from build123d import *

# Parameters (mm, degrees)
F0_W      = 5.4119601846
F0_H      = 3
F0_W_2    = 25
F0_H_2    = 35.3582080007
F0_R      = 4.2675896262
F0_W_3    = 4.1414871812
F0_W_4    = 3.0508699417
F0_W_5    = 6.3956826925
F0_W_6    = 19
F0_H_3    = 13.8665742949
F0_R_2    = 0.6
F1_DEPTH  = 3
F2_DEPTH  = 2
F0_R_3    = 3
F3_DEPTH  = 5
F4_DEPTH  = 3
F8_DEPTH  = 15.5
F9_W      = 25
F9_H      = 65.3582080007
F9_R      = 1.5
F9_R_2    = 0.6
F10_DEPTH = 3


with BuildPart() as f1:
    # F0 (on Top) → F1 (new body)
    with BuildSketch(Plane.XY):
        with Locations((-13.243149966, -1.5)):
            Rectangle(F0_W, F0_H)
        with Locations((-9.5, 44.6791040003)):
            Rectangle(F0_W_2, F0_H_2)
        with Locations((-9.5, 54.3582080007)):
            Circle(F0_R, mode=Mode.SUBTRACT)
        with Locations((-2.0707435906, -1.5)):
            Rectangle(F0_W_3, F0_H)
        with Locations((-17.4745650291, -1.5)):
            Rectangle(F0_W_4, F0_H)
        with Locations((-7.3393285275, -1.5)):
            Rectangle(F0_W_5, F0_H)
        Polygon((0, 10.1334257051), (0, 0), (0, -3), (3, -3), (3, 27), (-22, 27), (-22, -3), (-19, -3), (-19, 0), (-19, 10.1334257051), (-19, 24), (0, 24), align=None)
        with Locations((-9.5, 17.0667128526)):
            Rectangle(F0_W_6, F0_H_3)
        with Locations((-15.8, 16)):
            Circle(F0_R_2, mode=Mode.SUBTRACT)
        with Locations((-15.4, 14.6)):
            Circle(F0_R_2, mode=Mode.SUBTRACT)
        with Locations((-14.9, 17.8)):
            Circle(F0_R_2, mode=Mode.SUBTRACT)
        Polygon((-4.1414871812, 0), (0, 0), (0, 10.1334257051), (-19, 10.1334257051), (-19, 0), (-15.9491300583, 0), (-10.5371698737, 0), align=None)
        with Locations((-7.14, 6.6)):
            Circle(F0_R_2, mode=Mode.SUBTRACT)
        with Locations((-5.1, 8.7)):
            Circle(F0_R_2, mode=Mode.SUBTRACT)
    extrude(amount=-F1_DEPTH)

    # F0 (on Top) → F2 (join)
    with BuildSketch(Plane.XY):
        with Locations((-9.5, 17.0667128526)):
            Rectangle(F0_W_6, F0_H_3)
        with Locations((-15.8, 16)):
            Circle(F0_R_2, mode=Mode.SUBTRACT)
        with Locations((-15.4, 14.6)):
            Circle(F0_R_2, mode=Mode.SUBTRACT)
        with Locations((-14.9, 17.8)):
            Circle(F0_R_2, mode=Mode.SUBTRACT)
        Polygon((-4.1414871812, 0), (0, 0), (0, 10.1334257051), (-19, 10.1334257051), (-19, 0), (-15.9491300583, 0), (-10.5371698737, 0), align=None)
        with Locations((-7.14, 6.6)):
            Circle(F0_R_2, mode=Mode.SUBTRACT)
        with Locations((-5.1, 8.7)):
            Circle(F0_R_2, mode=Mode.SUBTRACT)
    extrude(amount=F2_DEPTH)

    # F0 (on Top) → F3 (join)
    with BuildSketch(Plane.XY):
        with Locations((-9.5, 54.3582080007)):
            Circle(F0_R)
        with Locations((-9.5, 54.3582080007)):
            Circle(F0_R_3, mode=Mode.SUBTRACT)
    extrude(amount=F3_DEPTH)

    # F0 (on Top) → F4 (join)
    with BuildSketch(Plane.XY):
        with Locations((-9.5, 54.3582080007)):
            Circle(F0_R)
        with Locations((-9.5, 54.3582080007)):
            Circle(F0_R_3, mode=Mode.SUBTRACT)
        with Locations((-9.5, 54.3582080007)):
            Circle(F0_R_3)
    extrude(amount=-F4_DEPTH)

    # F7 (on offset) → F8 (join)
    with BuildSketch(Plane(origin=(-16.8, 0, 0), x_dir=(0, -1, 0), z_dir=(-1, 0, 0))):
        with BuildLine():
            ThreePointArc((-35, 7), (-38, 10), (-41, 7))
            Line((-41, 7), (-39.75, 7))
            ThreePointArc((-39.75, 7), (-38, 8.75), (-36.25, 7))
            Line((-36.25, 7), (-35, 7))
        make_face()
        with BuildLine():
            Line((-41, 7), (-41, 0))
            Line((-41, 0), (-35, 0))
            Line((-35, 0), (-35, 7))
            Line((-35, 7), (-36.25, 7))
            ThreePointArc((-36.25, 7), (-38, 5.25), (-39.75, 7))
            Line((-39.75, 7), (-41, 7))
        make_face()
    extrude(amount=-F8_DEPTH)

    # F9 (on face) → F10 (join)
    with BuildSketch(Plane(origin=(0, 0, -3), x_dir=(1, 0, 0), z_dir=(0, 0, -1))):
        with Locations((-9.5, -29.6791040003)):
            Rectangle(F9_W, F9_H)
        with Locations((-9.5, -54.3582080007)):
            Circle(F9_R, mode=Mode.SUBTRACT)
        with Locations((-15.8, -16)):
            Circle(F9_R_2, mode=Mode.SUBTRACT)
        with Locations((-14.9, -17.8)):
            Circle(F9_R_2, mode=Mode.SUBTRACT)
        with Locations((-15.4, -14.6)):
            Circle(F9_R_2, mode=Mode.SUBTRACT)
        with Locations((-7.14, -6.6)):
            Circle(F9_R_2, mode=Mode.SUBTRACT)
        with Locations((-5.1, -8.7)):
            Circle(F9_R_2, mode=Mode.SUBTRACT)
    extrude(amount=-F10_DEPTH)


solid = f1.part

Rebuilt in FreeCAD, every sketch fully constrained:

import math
import FreeCAD as App
import Part
import Sketcher
from FreeCAD import Vector
Q = App.Units.Quantity

doc = App.newDocument("Part")
params = doc.addObject("Spreadsheet::Sheet", "Params")
for row, (alias, value) in enumerate([
    ("sketch1_diameter", "1.2 mm"),
    ("sketch1_width", "25 mm"),
    ("pad1_length", "3 mm"),
    ("sketch2_diameter", "1.2 mm"),
    ("sketch2_width", "19 mm"),
    ("sketch2_height", "24 mm"),
    ("pad2_length", "2 mm"),
    ("sketch3_diameter", "6 mm"),
    ("pad3_length", "5 mm"),
    ("pad4_length", "3 mm"),
    ("sketch5_radius", "3 mm"),
    ("sketch5_diameter", "3.5 mm"),
    ("sketch5_height", "7 mm"),
    ("pad5_length", "15.5 mm"),
    ("sketch6_diameter", "3 mm"),
    ("sketch6_diameter2", "1.2 mm"),
    ("sketch6_width", "25 mm"),
    ("pad6_length", "3 mm"),
], start=1):
    params.set(f"A{row}", alias)
    params.set(f"B{row}", "=" + value)
    params.setAlias(f"B{row}", alias)

body = doc.addObject("PartDesign::Body", "Body")
body.AllowCompound = True

sketch1 = doc.addObject("Sketcher::SketchObject", "Sketch")
body.addObject(sketch1)
sketch1.AttachmentSupport = (doc.XY_Plane, [""])
sketch1.MapMode = "FlatFace"
sketch1.addGeometry([
    Part.LineSegment(Vector(3, -3, 0), Vector(3, 62.4, 0)),
    Part.LineSegment(Vector(3, 62.4, 0), Vector(-22, 62.4, 0)),
    Part.LineSegment(Vector(-22, 62.4, 0), Vector(-22, -3, 0)),
    Part.LineSegment(Vector(-22, -3, 0), Vector(3, -3, 0)),
    Part.Circle(Vector(-15.4, 14.6, 0), Vector(0, 0, 1), 0.6),
    Part.Circle(Vector(-15.8, 16, 0), Vector(0, 0, 1), 0.6),
    Part.Circle(Vector(-14.9, 17.8, 0), Vector(0, 0, 1), 0.6),
    Part.Circle(Vector(-7.1, 6.6, 0), Vector(0, 0, 1), 0.6),
    Part.Circle(Vector(-5.1, 8.7, 0), Vector(0, 0, 1), 0.6),
    Part.Circle(Vector(-9.5, 54.4, 0), Vector(0, 0, 1), 4.3),
], False)
sketch1.addConstraint([
    Sketcher.Constraint("Coincident", 0, 2, 1, 1),
    Sketcher.Constraint("Coincident", 1, 2, 2, 1),
    Sketcher.Constraint("Coincident", 2, 2, 3, 1),
    Sketcher.Constraint("Coincident", 3, 2, 0, 1),
    Sketcher.Constraint("Vertical", 0),
    Sketcher.Constraint("Horizontal", 1),
    Sketcher.Constraint("Vertical", 2),
    Sketcher.Constraint("Horizontal", 3),
    Sketcher.Constraint("Equal", 4, 5),
    Sketcher.Constraint("Equal", 5, 6),
    Sketcher.Constraint("Equal", 6, 7),
    Sketcher.Constraint("Equal", 7, 8),
    Sketcher.Constraint("Diameter", 4, Q("1.2 mm")),
    Sketcher.Constraint("DistanceX", 1, 2, 1, 1, Q("25 mm")),
    Sketcher.Constraint("DistanceY", -1, 1, 5, 3, Q("16 mm")),
    Sketcher.Constraint("DistanceX", -1, 1, 0, 2, Q("3 mm")),
    Sketcher.Constraint("DistanceY", 2, 2, -1, 1, Q("3 mm")),
    Sketcher.Constraint("DistanceY", 7, 3, 4, 3, Q("8 mm")),
    Sketcher.Constraint("DistanceY", 9, 3, 0, 2, Q("8 mm")),
    Sketcher.Constraint("DistanceX", 4, 3, -1, 1, Q("15.4 mm")),
    Sketcher.Constraint("DistanceY", -1, 1, 4, 3, Q("14.6 mm")),
    Sketcher.Constraint("DistanceX", 5, 3, -1, 1, Q("15.8 mm")),
    Sketcher.Constraint("DistanceX", 6, 3, -1, 1, Q("14.9 mm")),
    Sketcher.Constraint("DistanceY", -1, 1, 6, 3, Q("17.8 mm")),
    Sketcher.Constraint("DistanceX", 8, 3, -1, 1, Q("5.1 mm")),
    Sketcher.Constraint("DistanceY", -1, 1, 8, 3, Q("8.7 mm")),
    Sketcher.Constraint("DistanceX", 9, 3, -1, 1, Q("9.5 mm")),
    Sketcher.Constraint("Diameter", 9, Q("8.535179 mm")),
    Sketcher.Constraint("DistanceX", 7, 3, -1, 1, Q("7.14 mm")),
    Sketcher.Constraint("DistanceY", 0, 1, 0, 2, Q("65.358208 mm")),
])
sketch1.setExpression("Constraints[12]", "Params.sketch1_diameter")
sketch1.setExpression("Constraints[13]", "Params.sketch1_width")
pad1 = doc.addObject("PartDesign::Pad", "Pad")
body.addObject(pad1)
pad1.Profile = sketch1
pad1.setExpression("Length", "Params.pad1_length")
pad1.Reversed = True

sketch2 = doc.addObject("Sketcher::SketchObject", "Sketch001")
body.addObject(sketch2)
sketch2.AttachmentSupport = (doc.XY_Plane, [""])
sketch2.MapMode = "FlatFace"
sketch2.addGeometry([
    Part.LineSegment(Vector(-19, 24, 0), Vector(-19, 0, 0)),
    Part.LineSegment(Vector(-19, 0, 0), Vector(0, 0, 0)),
    Part.LineSegment(Vector(0, 0, 0), Vector(0, 24, 0)),
    Part.LineSegment(Vector(0, 24, 0), Vector(-19, 24, 0)),
    Part.Circle(Vector(-7.1, 6.6, 0), Vector(0, 0, 1), 0.6),
    Part.Circle(Vector(-5.1, 8.7, 0), Vector(0, 0, 1), 0.6),
    Part.Circle(Vector(-15.4, 14.6, 0), Vector(0, 0, 1), 0.6),
    Part.Circle(Vector(-15.8, 16, 0), Vector(0, 0, 1), 0.6),
    Part.Circle(Vector(-14.9, 17.8, 0), Vector(0, 0, 1), 0.6),
], False)
sketch2.addConstraint([
    Sketcher.Constraint("Coincident", 0, 2, 1, 1),
    Sketcher.Constraint("Coincident", 1, 2, 2, 1),
    Sketcher.Constraint("Coincident", 2, 2, 3, 1),
    Sketcher.Constraint("Coincident", 3, 2, 0, 1),
    Sketcher.Constraint("Vertical", 0),
    Sketcher.Constraint("Horizontal", 1),
    Sketcher.Constraint("Vertical", 2),
    Sketcher.Constraint("Horizontal", 3),
    Sketcher.Constraint("Coincident", 1, 2, -1, 1),
    Sketcher.Constraint("Equal", 4, 5),
    Sketcher.Constraint("Equal", 5, 6),
    Sketcher.Constraint("Equal", 6, 7),
    Sketcher.Constraint("Equal", 7, 8),
    Sketcher.Constraint("Diameter", 4, Q("1.2 mm")),
    Sketcher.Constraint("DistanceX", 1, 1, 1, 2, Q("19 mm")),
    Sketcher.Constraint("DistanceY", 0, 2, 0, 1, Q("24 mm")),
    Sketcher.Constraint("DistanceY", -1, 1, 7, 3, Q("16 mm")),
    Sketcher.Constraint("DistanceY", 4, 3, 6, 3, Q("8 mm")),
    Sketcher.Constraint("DistanceY", -1, 1, 4, 3, Q("6.6 mm")),
    Sketcher.Constraint("DistanceX", 5, 3, -1, 1, Q("5.1 mm")),
    Sketcher.Constraint("DistanceY", -1, 1, 5, 3, Q("8.7 mm")),
    Sketcher.Constraint("DistanceX", 6, 3, -1, 1, Q("15.4 mm")),
    Sketcher.Constraint("DistanceX", 7, 3, -1, 1, Q("15.8 mm")),
    Sketcher.Constraint("DistanceX", 8, 3, -1, 1, Q("14.9 mm")),
    Sketcher.Constraint("DistanceY", -1, 1, 8, 3, Q("17.8 mm")),
    Sketcher.Constraint("DistanceX", 4, 3, -1, 1, Q("7.14 mm")),
])
sketch2.setExpression("Constraints[13]", "Params.sketch2_diameter")
sketch2.setExpression("Constraints[14]", "Params.sketch2_width")
sketch2.setExpression("Constraints[15]", "Params.sketch2_height")
pad2 = doc.addObject("PartDesign::Pad", "Pad001")
body.addObject(pad2)
pad2.Profile = sketch2
pad2.setExpression("Length", "Params.pad2_length")

sketch3 = doc.addObject("Sketcher::SketchObject", "Sketch002")
body.addObject(sketch3)
sketch3.AttachmentSupport = (doc.XY_Plane, [""])
sketch3.MapMode = "FlatFace"
sketch3.addGeometry([
    Part.Circle(Vector(-9.5, 54.4, 0), Vector(0, 0, 1), 4.3),
    Part.Circle(Vector(-9.5, 54.4, 0), Vector(0, 0, 1), 3),
], False)
sketch3.addConstraint([
    Sketcher.Constraint("Coincident", 1, 3, 0, 3),
    Sketcher.Constraint("Diameter", 1, Q("6 mm")),
    Sketcher.Constraint("DistanceX", 0, 3, -1, 1, Q("9.5 mm")),
    Sketcher.Constraint("Diameter", 0, Q("8.535179 mm")),
    Sketcher.Constraint("DistanceY", -1, 1, 0, 3, Q("54.358208 mm")),
])
sketch3.setExpression("Constraints[1]", "Params.sketch3_diameter")
pad3 = doc.addObject("PartDesign::Pad", "Pad002")
body.addObject(pad3)
pad3.Profile = sketch3
pad3.setExpression("Length", "Params.pad3_length")

sketch4 = doc.addObject("Sketcher::SketchObject", "Sketch003")
body.addObject(sketch4)
sketch4.AttachmentSupport = (doc.XY_Plane, [""])
sketch4.MapMode = "FlatFace"
sketch4.addGeometry(Part.Circle(Vector(-9.5, 54.4, 0), Vector(0, 0, 1), 4.3), False)
sketch4.addConstraint([
    Sketcher.Constraint("DistanceX", 0, 3, -1, 1, Q("9.5 mm")),
    Sketcher.Constraint("Diameter", 0, Q("8.535179 mm")),
    Sketcher.Constraint("DistanceY", -1, 1, 0, 3, Q("54.358208 mm")),
])
pad4 = doc.addObject("PartDesign::Pad", "Pad003")
body.addObject(pad4)
pad4.Profile = sketch4
pad4.setExpression("Length", "Params.pad4_length")
pad4.Reversed = True

sketch5 = doc.addObject("Sketcher::SketchObject", "Sketch004")
body.addObject(sketch5)
sketch5.AttachmentSupport = (doc.YZ_Plane, [""])
sketch5.MapMode = "FlatFace"
sketch5.AttachmentOffset = App.Placement(Vector(0, 0, -16.8), App.Rotation())
sketch5.addGeometry([
    Part.ArcOfCircle(Part.Circle(Vector(38, 7, 0), Vector(0, 0, 1), 3), math.radians(0), math.radians(180)),
    Part.LineSegment(Vector(41, 7, 0), Vector(41, 0, 0)),
    Part.LineSegment(Vector(41, 0, 0), Vector(35, 0, 0)),
    Part.LineSegment(Vector(35, 0, 0), Vector(35, 7, 0)),
    Part.Circle(Vector(38, 7, 0), Vector(0, 0, 1), 1.8),
], False)
sketch5.addConstraint([
    Sketcher.Constraint("Tangent", 0, 1, 1, 1),
    Sketcher.Constraint("Coincident", 1, 2, 2, 1),
    Sketcher.Constraint("Coincident", 2, 2, 3, 1),
    Sketcher.Constraint("Tangent", 3, 2, 0, 2),
    Sketcher.Constraint("Vertical", 1),
    Sketcher.Constraint("Horizontal", 2),
    Sketcher.Constraint("Vertical", 3),
    Sketcher.Constraint("Coincident", 4, 3, 0, 3),
    Sketcher.Constraint("PointOnObject", 1, 2, -1),
    Sketcher.Constraint("Radius", 0, Q("3 mm")),
    Sketcher.Constraint("Diameter", 4, Q("3.5 mm")),
    Sketcher.Constraint("DistanceY", 1, 2, 1, 1, Q("7 mm")),
    Sketcher.Constraint("DistanceX", -1, 1, 0, 3, Q("38 mm")),
])
sketch5.setExpression("Constraints[9]", "Params.sketch5_radius")
sketch5.setExpression("Constraints[10]", "Params.sketch5_diameter")
sketch5.setExpression("Constraints[11]", "Params.sketch5_height")
pad5 = doc.addObject("PartDesign::Pad", "Pad004")
body.addObject(pad5)
pad5.Profile = sketch5
pad5.setExpression("Length", "Params.pad5_length")

sketch6 = doc.addObject("Sketcher::SketchObject", "Sketch005")
body.addObject(sketch6)
sketch6.AttachmentSupport = (doc.XY_Plane, [""])
sketch6.MapMode = "FlatFace"
sketch6.AttachmentOffset = App.Placement(Vector(0, 0, -3), App.Rotation())
sketch6.addGeometry([
    Part.LineSegment(Vector(-22, -3, 0), Vector(-22, 62.4, 0)),
    Part.LineSegment(Vector(-22, 62.4, 0), Vector(3, 62.4, 0)),
    Part.LineSegment(Vector(3, 62.4, 0), Vector(3, -3, 0)),
    Part.LineSegment(Vector(3, -3, 0), Vector(-22, -3, 0)),
    Part.Circle(Vector(-9.5, 54.4, 0), Vector(0, 0, 1), 1.5),
    Part.Circle(Vector(-15.8, 16, 0), Vector(0, 0, 1), 0.6),
    Part.Circle(Vector(-15.4, 14.6, 0), Vector(0, 0, 1), 0.6),
    Part.Circle(Vector(-14.9, 17.8, 0), Vector(0, 0, 1), 0.6),
    Part.Circle(Vector(-7.1, 6.6, 0), Vector(0, 0, 1), 0.6),
    Part.Circle(Vector(-5.1, 8.7, 0), Vector(0, 0, 1), 0.6),
], False)
sketch6.addConstraint([
    Sketcher.Constraint("Coincident", 0, 2, 1, 1),
    Sketcher.Constraint("Coincident", 1, 2, 2, 1),
    Sketcher.Constraint("Coincident", 2, 2, 3, 1),
    Sketcher.Constraint("Coincident", 3, 2, 0, 1),
    Sketcher.Constraint("Vertical", 0),
    Sketcher.Constraint("Horizontal", 1),
    Sketcher.Constraint("Vertical", 2),
    Sketcher.Constraint("Horizontal", 3),
    Sketcher.Constraint("Equal", 5, 6),
    Sketcher.Constraint("Equal", 6, 7),
    Sketcher.Constraint("Equal", 7, 8),
    Sketcher.Constraint("Equal", 8, 9),
    Sketcher.Constraint("Diameter", 4, Q("3 mm")),
    Sketcher.Constraint("Diameter", 5, Q("1.2 mm")),
    Sketcher.Constraint("DistanceX", 1, 1, 1, 2, Q("25 mm")),
    Sketcher.Constraint("DistanceY", -1, 1, 5, 3, Q("16 mm")),
    Sketcher.Constraint("DistanceX", 0, 2, -1, 1, Q("22 mm")),
    Sketcher.Constraint("DistanceY", 2, 2, -1, 1, Q("3 mm")),
    Sketcher.Constraint("DistanceY", 8, 3, 6, 3, Q("8 mm")),
    Sketcher.Constraint("DistanceY", 4, 3, 0, 2, Q("8 mm")),
    Sketcher.Constraint("DistanceX", 4, 3, -1, 1, Q("9.5 mm")),
    Sketcher.Constraint("DistanceX", 5, 3, -1, 1, Q("15.8 mm")),
    Sketcher.Constraint("DistanceX", 6, 3, -1, 1, Q("15.4 mm")),
    Sketcher.Constraint("DistanceY", -1, 1, 6, 3, Q("14.6 mm")),
    Sketcher.Constraint("DistanceX", 7, 3, -1, 1, Q("14.9 mm")),
    Sketcher.Constraint("DistanceY", -1, 1, 7, 3, Q("17.8 mm")),
    Sketcher.Constraint("DistanceX", 9, 3, -1, 1, Q("5.1 mm")),
    Sketcher.Constraint("DistanceY", -1, 1, 9, 3, Q("8.7 mm")),
    Sketcher.Constraint("DistanceX", 8, 3, -1, 1, Q("7.14 mm")),
    Sketcher.Constraint("DistanceY", 0, 1, 0, 2, Q("65.358208 mm")),
])
sketch6.setExpression("Constraints[12]", "Params.sketch6_diameter")
sketch6.setExpression("Constraints[13]", "Params.sketch6_diameter2")
sketch6.setExpression("Constraints[14]", "Params.sketch6_width")
pad6 = doc.addObject("PartDesign::Pad", "Pad005")
body.addObject(pad6)
pad6.Profile = sketch6
pad6.setExpression("Length", "Params.pad6_length")

doc.recompute()
